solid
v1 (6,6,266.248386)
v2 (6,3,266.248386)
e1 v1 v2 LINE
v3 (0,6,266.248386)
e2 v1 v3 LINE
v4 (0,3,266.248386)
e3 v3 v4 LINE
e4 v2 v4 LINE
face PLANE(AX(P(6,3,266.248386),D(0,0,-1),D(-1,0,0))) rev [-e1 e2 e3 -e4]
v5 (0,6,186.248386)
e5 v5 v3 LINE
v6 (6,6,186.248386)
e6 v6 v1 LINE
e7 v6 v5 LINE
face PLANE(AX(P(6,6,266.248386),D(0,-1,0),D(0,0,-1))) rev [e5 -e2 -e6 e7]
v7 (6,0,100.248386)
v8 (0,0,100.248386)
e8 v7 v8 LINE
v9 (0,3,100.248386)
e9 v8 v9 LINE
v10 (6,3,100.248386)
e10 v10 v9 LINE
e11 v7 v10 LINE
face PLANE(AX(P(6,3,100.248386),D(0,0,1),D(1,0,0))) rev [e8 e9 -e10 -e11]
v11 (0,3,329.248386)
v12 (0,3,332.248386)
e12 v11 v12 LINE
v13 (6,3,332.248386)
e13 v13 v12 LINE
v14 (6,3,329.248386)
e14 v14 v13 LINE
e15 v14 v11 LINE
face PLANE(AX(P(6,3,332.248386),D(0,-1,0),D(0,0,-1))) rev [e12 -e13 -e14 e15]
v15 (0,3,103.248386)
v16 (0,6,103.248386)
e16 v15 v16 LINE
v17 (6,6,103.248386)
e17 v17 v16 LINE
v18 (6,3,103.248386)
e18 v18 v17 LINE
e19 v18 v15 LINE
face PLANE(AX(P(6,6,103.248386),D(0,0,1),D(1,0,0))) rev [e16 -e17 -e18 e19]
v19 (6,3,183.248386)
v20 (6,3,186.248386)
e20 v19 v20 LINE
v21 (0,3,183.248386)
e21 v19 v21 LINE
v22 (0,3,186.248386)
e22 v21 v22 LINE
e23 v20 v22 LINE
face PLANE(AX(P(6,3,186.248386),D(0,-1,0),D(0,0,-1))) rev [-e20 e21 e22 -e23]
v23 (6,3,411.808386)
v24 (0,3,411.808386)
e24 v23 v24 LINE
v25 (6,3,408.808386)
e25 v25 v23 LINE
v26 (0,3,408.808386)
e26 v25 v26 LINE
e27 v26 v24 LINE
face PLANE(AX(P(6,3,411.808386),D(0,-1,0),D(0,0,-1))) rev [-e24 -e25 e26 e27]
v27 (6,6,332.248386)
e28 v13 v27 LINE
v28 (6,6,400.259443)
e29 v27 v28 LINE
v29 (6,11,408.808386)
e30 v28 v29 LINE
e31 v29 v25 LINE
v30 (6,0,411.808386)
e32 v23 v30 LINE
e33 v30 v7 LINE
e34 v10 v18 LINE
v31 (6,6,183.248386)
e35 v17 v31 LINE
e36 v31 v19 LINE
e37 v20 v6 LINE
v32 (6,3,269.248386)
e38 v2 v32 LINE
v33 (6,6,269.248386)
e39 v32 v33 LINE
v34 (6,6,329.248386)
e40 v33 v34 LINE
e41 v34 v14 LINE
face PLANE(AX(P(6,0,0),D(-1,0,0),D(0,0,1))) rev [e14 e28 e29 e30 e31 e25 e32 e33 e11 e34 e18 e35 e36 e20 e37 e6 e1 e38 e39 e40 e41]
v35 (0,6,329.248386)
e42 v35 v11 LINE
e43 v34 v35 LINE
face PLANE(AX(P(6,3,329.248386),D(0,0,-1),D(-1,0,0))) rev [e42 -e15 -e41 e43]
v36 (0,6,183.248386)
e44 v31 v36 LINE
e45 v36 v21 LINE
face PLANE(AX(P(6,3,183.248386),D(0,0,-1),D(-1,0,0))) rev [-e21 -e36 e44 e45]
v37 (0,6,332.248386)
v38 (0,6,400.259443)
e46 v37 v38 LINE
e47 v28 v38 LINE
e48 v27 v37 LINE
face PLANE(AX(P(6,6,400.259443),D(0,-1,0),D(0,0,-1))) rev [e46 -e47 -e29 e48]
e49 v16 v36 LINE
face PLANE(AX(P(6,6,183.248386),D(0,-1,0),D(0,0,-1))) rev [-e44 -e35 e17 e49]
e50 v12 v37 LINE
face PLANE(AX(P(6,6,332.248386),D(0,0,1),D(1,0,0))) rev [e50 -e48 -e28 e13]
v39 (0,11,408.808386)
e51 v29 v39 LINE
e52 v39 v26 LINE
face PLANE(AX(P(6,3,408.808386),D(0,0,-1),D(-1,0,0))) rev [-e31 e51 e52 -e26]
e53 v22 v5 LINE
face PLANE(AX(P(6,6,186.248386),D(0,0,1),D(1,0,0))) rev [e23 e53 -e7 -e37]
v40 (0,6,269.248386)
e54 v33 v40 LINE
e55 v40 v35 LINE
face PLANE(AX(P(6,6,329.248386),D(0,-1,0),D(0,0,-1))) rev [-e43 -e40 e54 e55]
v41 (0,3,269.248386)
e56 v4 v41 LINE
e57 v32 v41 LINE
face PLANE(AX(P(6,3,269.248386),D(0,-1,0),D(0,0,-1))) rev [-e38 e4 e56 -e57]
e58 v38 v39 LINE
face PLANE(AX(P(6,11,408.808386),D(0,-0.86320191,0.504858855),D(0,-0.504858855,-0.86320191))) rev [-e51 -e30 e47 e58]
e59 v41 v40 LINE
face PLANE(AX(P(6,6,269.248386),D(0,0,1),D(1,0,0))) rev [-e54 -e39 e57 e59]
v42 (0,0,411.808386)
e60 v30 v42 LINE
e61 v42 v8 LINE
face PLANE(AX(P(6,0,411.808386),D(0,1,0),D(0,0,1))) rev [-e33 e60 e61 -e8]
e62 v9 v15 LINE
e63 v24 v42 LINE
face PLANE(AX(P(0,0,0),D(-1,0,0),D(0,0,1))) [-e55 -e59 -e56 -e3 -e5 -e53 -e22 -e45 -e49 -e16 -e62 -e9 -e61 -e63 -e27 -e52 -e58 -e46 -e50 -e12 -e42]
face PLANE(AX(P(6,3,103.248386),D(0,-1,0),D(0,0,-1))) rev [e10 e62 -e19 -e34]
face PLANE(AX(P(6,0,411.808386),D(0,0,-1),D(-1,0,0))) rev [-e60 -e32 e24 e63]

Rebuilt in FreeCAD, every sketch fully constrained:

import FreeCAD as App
import Part
import Sketcher

doc = App.newDocument("Part")
body = doc.addObject("PartDesign::Body", "Body")

# Sketch on YZ plane
sketch1 = doc.addObject("Sketcher::SketchObject", "Sketch")
body.addObject(sketch1)
sketch1.AttachmentSupport = (doc.YZ_Plane, [""])
sketch1.MapMode = "FlatFace"
sketch1.addGeometry([
    Part.LineSegment(App.Vector(0, 411.8, 0), App.Vector(0, 100.2, 0)),  # 0
    Part.LineSegment(App.Vector(0, 100.2, 0), App.Vector(3, 100.2, 0)),  # 1
    Part.LineSegment(App.Vector(3, 100.2, 0), App.Vector(3, 103.2, 0)),  # 2
    Part.LineSegment(App.Vector(3, 103.2, 0), App.Vector(6, 103.2, 0)),  # 3
    Part.LineSegment(App.Vector(6, 103.2, 0), App.Vector(6, 183.2, 0)),  # 4
    Part.LineSegment(App.Vector(6, 183.2, 0), App.Vector(3, 183.2, 0)),  # 5
    Part.LineSegment(App.Vector(3, 183.2, 0), App.Vector(3, 186.2, 0)),  # 6
    Part.LineSegment(App.Vector(3, 186.2, 0), App.Vector(6, 186.2, 0)),  # 7
    Part.LineSegment(App.Vector(6, 186.2, 0), App.Vector(6, 266.2, 0)),  # 8
    Part.LineSegment(App.Vector(6, 266.2, 0), App.Vector(3, 266.2, 0)),  # 9
    Part.LineSegment(App.Vector(3, 266.2, 0), App.Vector(3, 269.2, 0)),  # 10
    Part.LineSegment(App.Vector(3, 269.2, 0), App.Vector(6, 269.2, 0)),  # 11
    Part.LineSegment(App.Vector(6, 269.2, 0), App.Vector(6, 329.2, 0)),  # 12
    Part.LineSegment(App.Vector(6, 329.2, 0), App.Vector(3, 329.2, 0)),  # 13
    Part.LineSegment(App.Vector(3, 329.2, 0), App.Vector(3, 332.2, 0)),  # 14
    Part.LineSegment(App.Vector(3, 332.2, 0), App.Vector(6, 332.2, 0)),  # 15
    Part.LineSegment(App.Vector(6, 332.2, 0), App.Vector(6, 400.3, 0)),  # 16
    Part.LineSegment(App.Vector(6, 400.3, 0), App.Vector(11, 408.8, 0)),  # 17
    Part.LineSegment(App.Vector(11, 408.8, 0), App.Vector(3, 408.8, 0)),  # 18
    Part.LineSegment(App.Vector(3, 408.8, 0), App.Vector(3, 411.8, 0)),  # 19
    Part.LineSegment(App.Vector(3, 411.8, 0), App.Vector(0, 411.8, 0)),  # 20
], False)
sketch1.addConstraint([
    Sketcher.Constraint("Coincident", 0, 2, 1, 1),
    Sketcher.Constraint("Coincident", 1, 2, 2, 1),
    Sketcher.Constraint("Coincident", 2, 2, 3, 1),
    Sketcher.Constraint("Coincident", 3, 2, 4, 1),
    Sketcher.Constraint("Coincident", 4, 2, 5, 1),
    Sketcher.Constraint("Coincident", 5, 2, 6, 1),
    Sketcher.Constraint("Coincident", 6, 2, 7, 1),
    Sketcher.Constraint("Coincident", 7, 2, 8, 1),
    Sketcher.Constraint("Coincident", 8, 2, 9, 1),
    Sketcher.Constraint("Coincident", 9, 2, 10, 1),
    Sketcher.Constraint("Coincident", 10, 2, 11, 1),
    Sketcher.Constraint("Coincident", 11, 2, 12, 1),
    Sketcher.Constraint("Coincident", 12, 2, 13, 1),
    Sketcher.Constraint("Coincident", 13, 2, 14, 1),
    Sketcher.Constraint("Coincident", 14, 2, 15, 1),
    Sketcher.Constraint("Coincident", 15, 2, 16, 1),
    Sketcher.Constraint("Coincident", 16, 2, 17, 1),
    Sketcher.Constraint("Coincident", 17, 2, 18, 1),
    Sketcher.Constraint("Coincident", 18, 2, 19, 1),
    Sketcher.Constraint("Coincident", 19, 2, 20, 1),
    Sketcher.Constraint("Coincident", 20, 2, 0, 1),
    Sketcher.Constraint("Vertical", 0),
    Sketcher.Constraint("Horizontal", 1),
    Sketcher.Constraint("Vertical", 2),
    Sketcher.Constraint("Horizontal", 3),
    Sketcher.Constraint("Vertical", 4),
    Sketcher.Constraint("Horizontal", 5),
    Sketcher.Constraint("Vertical", 6),
    Sketcher.Constraint("Horizontal", 7),
    Sketcher.Constraint("Vertical", 8),
    Sketcher.Constraint("Horizontal", 9),
    Sketcher.Constraint("Vertical", 10),
    Sketcher.Constraint("Horizontal", 11),
    Sketcher.Constraint("Vertical", 12),
    Sketcher.Constraint("Horizontal", 13),
    Sketcher.Constraint("Vertical", 14),
    Sketcher.Constraint("Horizontal", 15),
    Sketcher.Constraint("Vertical", 16),
    Sketcher.Constraint("Horizontal", 18),
    Sketcher.Constraint("Vertical", 19),
    Sketcher.Constraint("Horizontal", 20),
    Sketcher.Constraint("PointOnObject", 0, 2, -2),
    Sketcher.Constraint("Vertical", 2, 2, 5, 2),
    Sketcher.Constraint("Vertical", 4, 2, 7, 2),
    Sketcher.Constraint("Vertical", 6, 2, 9, 2),
    Sketcher.Constraint("Vertical", 8, 2, 11, 2),
    Sketcher.Constraint("Vertical", 10, 2, 13, 2),
    Sketcher.Constraint("Vertical", 12, 2, 15, 2),
    Sketcher.Constraint("Vertical", 14, 2, 18, 2),
    Sketcher.Constraint("Equal", 1, 3),
    Sketcher.Constraint("Equal", 20, 2),
    Sketcher.Constraint("Equal", 2, 6),
    Sketcher.Constraint("Equal", 4, 8),
    Sketcher.Constraint("Equal", 6, 10),
    Sketcher.Constraint("Equal", 10, 14),
    Sketcher.Constraint("Equal", 14, 19),
    Sketcher.Constraint("DistanceX", 1, 1, 1, 2, 3.0),
    Sketcher.Constraint("DistanceX", 18, 2, 18, 1, 8.0),
    Sketcher.Constraint("DistanceY", 4, 1, 4, 2, 80.0),
    Sketcher.Constraint("DistanceY", 12, 1, 12, 2, 60.0),
    Sketcher.Constraint("DistanceY", 0, 2, 0, 1, 311.56),
    Sketcher.Constraint("Distance", 17, 9.903758),
    Sketcher.Constraint("DistanceY", -1, 1, 0, 2, 100.248386),
])
pad1 = doc.addObject("PartDesign::Pad", "Pad")
body.addObject(pad1)
pad1.Profile = sketch1
pad1.Length = 6

doc.recompute()
